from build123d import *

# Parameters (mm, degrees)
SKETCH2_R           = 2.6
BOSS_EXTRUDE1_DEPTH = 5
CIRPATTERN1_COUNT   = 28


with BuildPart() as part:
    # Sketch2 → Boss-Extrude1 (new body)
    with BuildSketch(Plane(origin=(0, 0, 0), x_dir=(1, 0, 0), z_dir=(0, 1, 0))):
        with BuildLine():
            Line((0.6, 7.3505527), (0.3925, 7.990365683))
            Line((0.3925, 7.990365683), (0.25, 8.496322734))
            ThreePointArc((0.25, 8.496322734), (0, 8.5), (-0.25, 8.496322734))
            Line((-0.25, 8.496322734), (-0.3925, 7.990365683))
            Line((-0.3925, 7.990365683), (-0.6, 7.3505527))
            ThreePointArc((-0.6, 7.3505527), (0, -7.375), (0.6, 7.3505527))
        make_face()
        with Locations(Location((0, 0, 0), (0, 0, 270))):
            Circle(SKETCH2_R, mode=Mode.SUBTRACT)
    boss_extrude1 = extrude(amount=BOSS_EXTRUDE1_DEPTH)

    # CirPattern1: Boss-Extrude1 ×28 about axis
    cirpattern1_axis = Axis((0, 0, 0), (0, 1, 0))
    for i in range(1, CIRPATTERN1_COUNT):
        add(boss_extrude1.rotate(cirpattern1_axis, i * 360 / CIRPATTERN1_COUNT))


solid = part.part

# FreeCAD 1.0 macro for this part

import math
import FreeCAD as App
import Part
import Sketcher
Q = App.Units.Quantity

doc = App.newDocument("Part")
params = doc.addObject("Spreadsheet::Sheet", "Params")
for row, (alias, value) in enumerate([
    ("sketch1_diameter", "5.2 mm"),
    ("sketch1_radius", "8.5 mm"),
    ("pad1_length", "5 mm"),
], start=1):
    params.set(f"A{row}", alias)
    params.set(f"B{row}", "=" + value)
    params.setAlias(f"B{row}", alias)

body = doc.addObject("PartDesign::Body", "Body")

# Sketch on XZ plane
sketch1 = doc.addObject("Sketcher::SketchObject", "Sketch")
body.addObject(sketch1)
sketch1.AttachmentSupport = (doc.XZ_Plane, [""])
sketch1.MapMode = "FlatFace"
sketch1.addGeometry([
    Part.LineSegment(App.Vector(0.6, -7.4, 0), App.Vector(0.4, -8, 0)),  # 0
    Part.LineSegment(App.Vector(0.4, -8, 0), App.Vector(0.2, -8.5, 0)),  # 1
    Part.ArcOfCircle(Part.Circle(App.Vector(0, 0, 0), App.Vector(0, 0, 1), 8.5), math.radians(-91.69), math.radians(-88.31)),  # 2
    Part.LineSegment(App.Vector(-0.2, -8.5, 0), App.Vector(-0.4, -8, 0)),  # 3
    Part.LineSegment(App.Vector(-0.4, -8, 0), App.Vector(-0.6, -7.4, 0)),  # 4
    Part.ArcOfCircle(Part.Circle(App.Vector(0, 0, 0), App.Vector(0, 0, 1), 7.4), math.radians(-85), math.radians(265)),  # 5
    Part.Circle(App.Vector(0, 0, 0), App.Vector(0, 0, 1), 2.6),  # 6
], False)
sketch1.addConstraint([
    Sketcher.Constraint("Coincident", 0, 2, 1, 1),
    Sketcher.Constraint("Coincident", 1, 2, 2, 2),
    Sketcher.Constraint("Coincident", 2, 1, 3, 1),
    Sketcher.Constraint("Coincident", 3, 2, 4, 1),
    Sketcher.Constraint("Coincident", 4, 2, 5, 2),
    Sketcher.Constraint("Coincident", 5, 1, 0, 1),
    Sketcher.Constraint("Coincident", 2, 3, -1, 1),
    Sketcher.Constraint("Coincident", 5, 3, -1, 1),
    Sketcher.Constraint("Coincident", 6, 3, -1, 1),
    Sketcher.Constraint("Symmetric", 0, 2, 3, 2, -2),
    Sketcher.Constraint("Horizontal", 1, 2, 2, 1),
    Sketcher.Constraint("Horizontal", 4, 2, 5, 1),
    Sketcher.Constraint("Diameter", 6, Q("5.2 mm")),
    Sketcher.Constraint("Radius", 2, Q("8.5 mm")),
    Sketcher.Constraint("Radius", 5, Q("7.375 mm")),
    Sketcher.Constraint("DistanceX", 4, 2, -1, 1, Q("0.6 mm")),
    Sketcher.Constraint("DistanceX", 2, 1, 1, 2, Q("0.5 mm")),
    Sketcher.Constraint("DistanceX", 3, 2, 0, 2, Q("0.785 mm")),
    Sketcher.Constraint("Distance", 0, Q("0.672619 mm")),
])
sketch1.setExpression("Constraints[12]", "Params.sketch1_diameter")
sketch1.setExpression("Constraints[13]", "Params.sketch1_radius")
pad1 = doc.addObject("PartDesign::Pad", "Pad")
body.addObject(pad1)
pad1.Profile = sketch1
pad1.setExpression("Length", "Params.pad1_length")
pad1.Reversed = True
doc.recompute()

polarpattern = doc.addObject("PartDesign::PolarPattern", "PolarPattern")
body.addObject(polarpattern)
polarpattern.Originals = [pad1]
polarpattern.Axis = (doc.Y_Axis, [""])
polarpattern.Angle = 360
polarpattern.Occurrences = 28
body.Tip = polarpattern

doc.recompute()
